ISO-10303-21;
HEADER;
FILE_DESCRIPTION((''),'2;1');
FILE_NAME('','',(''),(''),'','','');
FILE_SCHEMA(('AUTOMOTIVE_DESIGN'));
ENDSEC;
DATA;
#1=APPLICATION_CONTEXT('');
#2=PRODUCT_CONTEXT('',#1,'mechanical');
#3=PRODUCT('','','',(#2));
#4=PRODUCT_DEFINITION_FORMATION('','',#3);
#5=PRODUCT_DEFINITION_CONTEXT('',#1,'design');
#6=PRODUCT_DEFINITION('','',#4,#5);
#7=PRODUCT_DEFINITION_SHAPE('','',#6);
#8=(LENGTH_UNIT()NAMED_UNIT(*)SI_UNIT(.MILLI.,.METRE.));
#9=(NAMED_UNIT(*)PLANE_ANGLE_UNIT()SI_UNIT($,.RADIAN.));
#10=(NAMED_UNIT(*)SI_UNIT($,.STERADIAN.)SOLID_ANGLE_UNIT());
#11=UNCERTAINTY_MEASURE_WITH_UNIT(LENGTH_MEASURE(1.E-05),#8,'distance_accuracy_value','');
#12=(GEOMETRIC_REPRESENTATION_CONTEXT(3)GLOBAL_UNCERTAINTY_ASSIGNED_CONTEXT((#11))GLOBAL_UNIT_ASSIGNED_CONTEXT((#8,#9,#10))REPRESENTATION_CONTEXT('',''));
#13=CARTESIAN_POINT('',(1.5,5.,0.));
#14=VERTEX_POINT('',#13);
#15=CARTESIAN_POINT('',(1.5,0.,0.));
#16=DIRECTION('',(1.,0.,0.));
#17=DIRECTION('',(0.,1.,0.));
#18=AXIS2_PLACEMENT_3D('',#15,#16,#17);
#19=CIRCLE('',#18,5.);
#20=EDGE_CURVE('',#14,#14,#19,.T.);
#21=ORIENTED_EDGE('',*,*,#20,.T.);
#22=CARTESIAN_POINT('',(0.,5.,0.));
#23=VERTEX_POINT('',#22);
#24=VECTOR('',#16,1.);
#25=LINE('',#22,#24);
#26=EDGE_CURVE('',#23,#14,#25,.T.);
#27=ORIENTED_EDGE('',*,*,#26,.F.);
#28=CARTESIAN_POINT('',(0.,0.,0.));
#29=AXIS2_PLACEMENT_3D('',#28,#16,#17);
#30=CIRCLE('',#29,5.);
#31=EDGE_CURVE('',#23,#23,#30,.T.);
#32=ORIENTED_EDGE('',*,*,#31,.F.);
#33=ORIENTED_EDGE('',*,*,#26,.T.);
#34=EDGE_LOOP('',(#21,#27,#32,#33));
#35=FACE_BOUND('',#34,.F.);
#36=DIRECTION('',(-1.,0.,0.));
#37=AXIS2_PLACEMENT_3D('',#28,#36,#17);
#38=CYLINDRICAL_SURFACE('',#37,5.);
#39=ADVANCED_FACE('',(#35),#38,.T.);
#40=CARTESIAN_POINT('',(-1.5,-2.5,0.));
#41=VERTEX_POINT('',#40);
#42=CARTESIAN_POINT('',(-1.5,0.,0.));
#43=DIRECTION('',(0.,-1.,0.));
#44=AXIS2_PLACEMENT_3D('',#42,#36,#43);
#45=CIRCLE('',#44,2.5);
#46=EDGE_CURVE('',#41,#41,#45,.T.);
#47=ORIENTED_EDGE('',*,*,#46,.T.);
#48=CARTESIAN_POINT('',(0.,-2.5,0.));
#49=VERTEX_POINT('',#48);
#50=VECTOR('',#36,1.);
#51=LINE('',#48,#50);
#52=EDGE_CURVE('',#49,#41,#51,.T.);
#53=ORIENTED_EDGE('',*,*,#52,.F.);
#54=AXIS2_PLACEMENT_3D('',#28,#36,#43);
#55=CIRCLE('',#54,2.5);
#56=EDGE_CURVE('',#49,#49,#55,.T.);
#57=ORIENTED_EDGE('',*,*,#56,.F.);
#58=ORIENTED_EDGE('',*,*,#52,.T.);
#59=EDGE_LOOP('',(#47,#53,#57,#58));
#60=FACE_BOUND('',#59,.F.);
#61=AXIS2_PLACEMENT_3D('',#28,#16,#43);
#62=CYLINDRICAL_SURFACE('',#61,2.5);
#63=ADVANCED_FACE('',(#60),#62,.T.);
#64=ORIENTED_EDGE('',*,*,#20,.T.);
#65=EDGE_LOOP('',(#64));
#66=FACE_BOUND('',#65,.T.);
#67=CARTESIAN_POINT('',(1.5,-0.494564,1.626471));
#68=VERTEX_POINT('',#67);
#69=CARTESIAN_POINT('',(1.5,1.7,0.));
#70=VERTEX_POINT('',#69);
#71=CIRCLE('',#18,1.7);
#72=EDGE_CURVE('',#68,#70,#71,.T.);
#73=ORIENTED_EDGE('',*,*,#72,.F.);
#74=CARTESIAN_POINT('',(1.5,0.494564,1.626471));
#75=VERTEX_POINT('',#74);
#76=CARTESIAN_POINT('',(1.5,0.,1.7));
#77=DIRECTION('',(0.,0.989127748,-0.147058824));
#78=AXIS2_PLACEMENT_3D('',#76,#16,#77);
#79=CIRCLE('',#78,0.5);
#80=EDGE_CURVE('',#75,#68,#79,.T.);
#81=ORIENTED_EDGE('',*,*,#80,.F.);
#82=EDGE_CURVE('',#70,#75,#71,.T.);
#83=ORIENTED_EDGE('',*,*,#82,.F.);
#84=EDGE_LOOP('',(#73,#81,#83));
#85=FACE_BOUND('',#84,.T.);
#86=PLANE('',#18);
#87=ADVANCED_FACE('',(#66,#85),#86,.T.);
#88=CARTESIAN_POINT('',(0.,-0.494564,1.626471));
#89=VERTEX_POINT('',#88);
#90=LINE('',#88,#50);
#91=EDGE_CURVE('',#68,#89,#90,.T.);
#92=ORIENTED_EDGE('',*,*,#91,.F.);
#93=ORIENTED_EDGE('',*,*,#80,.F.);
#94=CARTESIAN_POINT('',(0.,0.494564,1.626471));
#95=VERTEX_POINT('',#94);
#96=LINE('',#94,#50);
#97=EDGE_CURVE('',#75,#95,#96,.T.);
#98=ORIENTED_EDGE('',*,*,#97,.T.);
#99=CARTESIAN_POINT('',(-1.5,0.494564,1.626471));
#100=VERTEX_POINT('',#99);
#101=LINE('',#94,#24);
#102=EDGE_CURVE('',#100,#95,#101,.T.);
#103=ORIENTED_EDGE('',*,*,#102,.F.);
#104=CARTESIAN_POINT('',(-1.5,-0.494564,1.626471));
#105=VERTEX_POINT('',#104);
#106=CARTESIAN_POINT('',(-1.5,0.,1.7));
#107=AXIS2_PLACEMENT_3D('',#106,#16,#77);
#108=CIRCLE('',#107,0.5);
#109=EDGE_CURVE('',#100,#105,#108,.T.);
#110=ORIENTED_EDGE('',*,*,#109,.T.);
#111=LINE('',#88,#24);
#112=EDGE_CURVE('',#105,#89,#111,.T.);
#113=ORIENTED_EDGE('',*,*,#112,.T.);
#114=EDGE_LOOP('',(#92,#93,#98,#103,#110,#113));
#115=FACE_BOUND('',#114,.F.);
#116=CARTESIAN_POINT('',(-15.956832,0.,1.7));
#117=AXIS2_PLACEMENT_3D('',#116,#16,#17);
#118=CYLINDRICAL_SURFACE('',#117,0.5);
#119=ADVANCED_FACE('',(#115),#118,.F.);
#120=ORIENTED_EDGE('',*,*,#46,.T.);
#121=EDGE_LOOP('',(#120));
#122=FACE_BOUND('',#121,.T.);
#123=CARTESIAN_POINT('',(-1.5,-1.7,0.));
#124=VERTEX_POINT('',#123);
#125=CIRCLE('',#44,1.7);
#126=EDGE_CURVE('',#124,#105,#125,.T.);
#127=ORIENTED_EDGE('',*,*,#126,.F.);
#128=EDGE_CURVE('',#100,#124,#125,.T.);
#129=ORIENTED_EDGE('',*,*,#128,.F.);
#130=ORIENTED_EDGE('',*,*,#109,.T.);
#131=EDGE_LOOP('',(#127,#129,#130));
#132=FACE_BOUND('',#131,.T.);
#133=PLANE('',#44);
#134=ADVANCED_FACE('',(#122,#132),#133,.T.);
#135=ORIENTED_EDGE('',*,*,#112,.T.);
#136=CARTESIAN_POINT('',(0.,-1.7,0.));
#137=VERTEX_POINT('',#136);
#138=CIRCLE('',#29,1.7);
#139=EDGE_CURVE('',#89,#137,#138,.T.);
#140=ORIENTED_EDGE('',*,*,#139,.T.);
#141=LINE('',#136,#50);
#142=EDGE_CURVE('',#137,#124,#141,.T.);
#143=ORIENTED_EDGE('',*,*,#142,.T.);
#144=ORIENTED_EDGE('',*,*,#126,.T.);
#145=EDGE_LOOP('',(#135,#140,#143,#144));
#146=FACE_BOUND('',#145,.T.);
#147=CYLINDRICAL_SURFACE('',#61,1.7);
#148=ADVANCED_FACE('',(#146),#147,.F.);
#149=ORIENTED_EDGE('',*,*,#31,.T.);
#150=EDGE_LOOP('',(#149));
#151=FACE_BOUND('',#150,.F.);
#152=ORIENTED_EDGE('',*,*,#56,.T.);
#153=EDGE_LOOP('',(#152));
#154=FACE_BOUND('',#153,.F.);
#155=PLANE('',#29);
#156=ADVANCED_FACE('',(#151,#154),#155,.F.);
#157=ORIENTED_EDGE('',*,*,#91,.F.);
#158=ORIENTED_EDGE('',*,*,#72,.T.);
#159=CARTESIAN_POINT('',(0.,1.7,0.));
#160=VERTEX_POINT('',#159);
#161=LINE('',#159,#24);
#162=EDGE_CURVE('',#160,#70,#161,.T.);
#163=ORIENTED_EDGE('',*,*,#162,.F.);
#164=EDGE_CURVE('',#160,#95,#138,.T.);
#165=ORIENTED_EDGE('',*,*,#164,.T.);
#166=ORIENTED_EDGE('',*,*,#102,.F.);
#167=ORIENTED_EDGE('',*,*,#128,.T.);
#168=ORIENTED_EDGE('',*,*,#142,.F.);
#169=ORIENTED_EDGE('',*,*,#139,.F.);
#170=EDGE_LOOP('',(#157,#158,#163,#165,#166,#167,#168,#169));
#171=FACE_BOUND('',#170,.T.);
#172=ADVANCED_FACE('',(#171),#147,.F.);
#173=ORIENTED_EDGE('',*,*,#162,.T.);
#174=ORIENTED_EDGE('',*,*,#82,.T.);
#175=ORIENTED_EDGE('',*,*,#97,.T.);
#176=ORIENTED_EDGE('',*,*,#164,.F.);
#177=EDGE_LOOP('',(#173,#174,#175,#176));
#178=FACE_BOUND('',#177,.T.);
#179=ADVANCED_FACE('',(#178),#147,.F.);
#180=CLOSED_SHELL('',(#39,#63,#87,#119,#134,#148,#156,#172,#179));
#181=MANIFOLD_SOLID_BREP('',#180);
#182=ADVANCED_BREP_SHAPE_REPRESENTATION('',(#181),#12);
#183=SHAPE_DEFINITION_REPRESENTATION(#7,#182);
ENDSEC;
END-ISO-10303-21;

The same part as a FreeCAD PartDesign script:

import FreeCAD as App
import Part
import Sketcher
from FreeCAD import Vector
Q = App.Units.Quantity

doc = App.newDocument("Part")
body = doc.addObject("PartDesign::Body", "Body")

sketch1 = body.newObject("Sketcher::SketchObject", "Sketch")
sketch1.AttachmentSupport = (doc.getObject("YZ_Plane"), [""])
sketch1.MapMode = "FlatFace"
sketch1.addGeometry(Part.Circle(Vector(0, 0, 0), Vector(0, 0, 1), 5), False)
sketch1.addGeometry(Part.Circle(Vector(0, 0, 0), Vector(0, 0, 1), 1.7), False)
sketch1.addConstraint(Sketcher.Constraint("Coincident", 0, 3, -1, 1))
sketch1.addConstraint(Sketcher.Constraint("Coincident", 1, 3, -1, 1))
sketch1.addConstraint(Sketcher.Constraint("Diameter", 0, Q("10 mm")))
sketch1.addConstraint(Sketcher.Constraint("Diameter", 1, Q("3.4 mm")))
pad1 = body.newObject("PartDesign::Pad", "Pad")
pad1.Profile = sketch1
pad1.Length = 1.5

sketch2 = body.newObject("Sketcher::SketchObject", "Sketch001")
sketch2.AttachmentSupport = (doc.getObject("YZ_Plane"), [""])
sketch2.MapMode = "FlatFace"
sketch2.addGeometry(Part.Circle(Vector(0, 0, 0), Vector(0, 0, 1), 2.5), False)
sketch2.addGeometry(Part.Circle(Vector(0, 0, 0), Vector(0, 0, 1), 1.7), False)
sketch2.addConstraint(Sketcher.Constraint("Coincident", 0, 3, -1, 1))
sketch2.addConstraint(Sketcher.Constraint("Coincident", 1, 3, -1, 1))
sketch2.addConstraint(Sketcher.Constraint("Diameter", 0, Q("5 mm")))
sketch2.addConstraint(Sketcher.Constraint("Diameter", 1, Q("3.4 mm")))
pad2 = body.newObject("PartDesign::Pad", "Pad001")
pad2.Profile = sketch2
pad2.Length = 1.5
pad2.Reversed = True

sketch3 = body.newObject("Sketcher::SketchObject", "Sketch002")
sketch3.AttachmentSupport = (doc.getObject("YZ_Plane"), [""])
sketch3.MapMode = "FlatFace"
sketch3.AttachmentOffset = App.Placement(Vector(0, 0, -1.5), App.Rotation())
sketch3.addGeometry(Part.Circle(Vector(0, 1.7, 0), Vector(0, 0, 1), 0.5), False)
sketch3.addConstraint(Sketcher.Constraint("PointOnObject", 0, 3, -2))
sketch3.addConstraint(Sketcher.Constraint("Diameter", 0, Q("1 mm")))
sketch3.addConstraint(Sketcher.Constraint("DistanceY", -1, 1, 0, 3, Q("1.7 mm")))
doc.recompute()
hole = body.newObject("PartDesign::Hole", "Hole")
hole.Profile = sketch3
hole.ThreadType = "None"
hole.Diameter = 1
hole.DepthType = "ThroughAll"
hole.Reversed = True

doc.recompute()
